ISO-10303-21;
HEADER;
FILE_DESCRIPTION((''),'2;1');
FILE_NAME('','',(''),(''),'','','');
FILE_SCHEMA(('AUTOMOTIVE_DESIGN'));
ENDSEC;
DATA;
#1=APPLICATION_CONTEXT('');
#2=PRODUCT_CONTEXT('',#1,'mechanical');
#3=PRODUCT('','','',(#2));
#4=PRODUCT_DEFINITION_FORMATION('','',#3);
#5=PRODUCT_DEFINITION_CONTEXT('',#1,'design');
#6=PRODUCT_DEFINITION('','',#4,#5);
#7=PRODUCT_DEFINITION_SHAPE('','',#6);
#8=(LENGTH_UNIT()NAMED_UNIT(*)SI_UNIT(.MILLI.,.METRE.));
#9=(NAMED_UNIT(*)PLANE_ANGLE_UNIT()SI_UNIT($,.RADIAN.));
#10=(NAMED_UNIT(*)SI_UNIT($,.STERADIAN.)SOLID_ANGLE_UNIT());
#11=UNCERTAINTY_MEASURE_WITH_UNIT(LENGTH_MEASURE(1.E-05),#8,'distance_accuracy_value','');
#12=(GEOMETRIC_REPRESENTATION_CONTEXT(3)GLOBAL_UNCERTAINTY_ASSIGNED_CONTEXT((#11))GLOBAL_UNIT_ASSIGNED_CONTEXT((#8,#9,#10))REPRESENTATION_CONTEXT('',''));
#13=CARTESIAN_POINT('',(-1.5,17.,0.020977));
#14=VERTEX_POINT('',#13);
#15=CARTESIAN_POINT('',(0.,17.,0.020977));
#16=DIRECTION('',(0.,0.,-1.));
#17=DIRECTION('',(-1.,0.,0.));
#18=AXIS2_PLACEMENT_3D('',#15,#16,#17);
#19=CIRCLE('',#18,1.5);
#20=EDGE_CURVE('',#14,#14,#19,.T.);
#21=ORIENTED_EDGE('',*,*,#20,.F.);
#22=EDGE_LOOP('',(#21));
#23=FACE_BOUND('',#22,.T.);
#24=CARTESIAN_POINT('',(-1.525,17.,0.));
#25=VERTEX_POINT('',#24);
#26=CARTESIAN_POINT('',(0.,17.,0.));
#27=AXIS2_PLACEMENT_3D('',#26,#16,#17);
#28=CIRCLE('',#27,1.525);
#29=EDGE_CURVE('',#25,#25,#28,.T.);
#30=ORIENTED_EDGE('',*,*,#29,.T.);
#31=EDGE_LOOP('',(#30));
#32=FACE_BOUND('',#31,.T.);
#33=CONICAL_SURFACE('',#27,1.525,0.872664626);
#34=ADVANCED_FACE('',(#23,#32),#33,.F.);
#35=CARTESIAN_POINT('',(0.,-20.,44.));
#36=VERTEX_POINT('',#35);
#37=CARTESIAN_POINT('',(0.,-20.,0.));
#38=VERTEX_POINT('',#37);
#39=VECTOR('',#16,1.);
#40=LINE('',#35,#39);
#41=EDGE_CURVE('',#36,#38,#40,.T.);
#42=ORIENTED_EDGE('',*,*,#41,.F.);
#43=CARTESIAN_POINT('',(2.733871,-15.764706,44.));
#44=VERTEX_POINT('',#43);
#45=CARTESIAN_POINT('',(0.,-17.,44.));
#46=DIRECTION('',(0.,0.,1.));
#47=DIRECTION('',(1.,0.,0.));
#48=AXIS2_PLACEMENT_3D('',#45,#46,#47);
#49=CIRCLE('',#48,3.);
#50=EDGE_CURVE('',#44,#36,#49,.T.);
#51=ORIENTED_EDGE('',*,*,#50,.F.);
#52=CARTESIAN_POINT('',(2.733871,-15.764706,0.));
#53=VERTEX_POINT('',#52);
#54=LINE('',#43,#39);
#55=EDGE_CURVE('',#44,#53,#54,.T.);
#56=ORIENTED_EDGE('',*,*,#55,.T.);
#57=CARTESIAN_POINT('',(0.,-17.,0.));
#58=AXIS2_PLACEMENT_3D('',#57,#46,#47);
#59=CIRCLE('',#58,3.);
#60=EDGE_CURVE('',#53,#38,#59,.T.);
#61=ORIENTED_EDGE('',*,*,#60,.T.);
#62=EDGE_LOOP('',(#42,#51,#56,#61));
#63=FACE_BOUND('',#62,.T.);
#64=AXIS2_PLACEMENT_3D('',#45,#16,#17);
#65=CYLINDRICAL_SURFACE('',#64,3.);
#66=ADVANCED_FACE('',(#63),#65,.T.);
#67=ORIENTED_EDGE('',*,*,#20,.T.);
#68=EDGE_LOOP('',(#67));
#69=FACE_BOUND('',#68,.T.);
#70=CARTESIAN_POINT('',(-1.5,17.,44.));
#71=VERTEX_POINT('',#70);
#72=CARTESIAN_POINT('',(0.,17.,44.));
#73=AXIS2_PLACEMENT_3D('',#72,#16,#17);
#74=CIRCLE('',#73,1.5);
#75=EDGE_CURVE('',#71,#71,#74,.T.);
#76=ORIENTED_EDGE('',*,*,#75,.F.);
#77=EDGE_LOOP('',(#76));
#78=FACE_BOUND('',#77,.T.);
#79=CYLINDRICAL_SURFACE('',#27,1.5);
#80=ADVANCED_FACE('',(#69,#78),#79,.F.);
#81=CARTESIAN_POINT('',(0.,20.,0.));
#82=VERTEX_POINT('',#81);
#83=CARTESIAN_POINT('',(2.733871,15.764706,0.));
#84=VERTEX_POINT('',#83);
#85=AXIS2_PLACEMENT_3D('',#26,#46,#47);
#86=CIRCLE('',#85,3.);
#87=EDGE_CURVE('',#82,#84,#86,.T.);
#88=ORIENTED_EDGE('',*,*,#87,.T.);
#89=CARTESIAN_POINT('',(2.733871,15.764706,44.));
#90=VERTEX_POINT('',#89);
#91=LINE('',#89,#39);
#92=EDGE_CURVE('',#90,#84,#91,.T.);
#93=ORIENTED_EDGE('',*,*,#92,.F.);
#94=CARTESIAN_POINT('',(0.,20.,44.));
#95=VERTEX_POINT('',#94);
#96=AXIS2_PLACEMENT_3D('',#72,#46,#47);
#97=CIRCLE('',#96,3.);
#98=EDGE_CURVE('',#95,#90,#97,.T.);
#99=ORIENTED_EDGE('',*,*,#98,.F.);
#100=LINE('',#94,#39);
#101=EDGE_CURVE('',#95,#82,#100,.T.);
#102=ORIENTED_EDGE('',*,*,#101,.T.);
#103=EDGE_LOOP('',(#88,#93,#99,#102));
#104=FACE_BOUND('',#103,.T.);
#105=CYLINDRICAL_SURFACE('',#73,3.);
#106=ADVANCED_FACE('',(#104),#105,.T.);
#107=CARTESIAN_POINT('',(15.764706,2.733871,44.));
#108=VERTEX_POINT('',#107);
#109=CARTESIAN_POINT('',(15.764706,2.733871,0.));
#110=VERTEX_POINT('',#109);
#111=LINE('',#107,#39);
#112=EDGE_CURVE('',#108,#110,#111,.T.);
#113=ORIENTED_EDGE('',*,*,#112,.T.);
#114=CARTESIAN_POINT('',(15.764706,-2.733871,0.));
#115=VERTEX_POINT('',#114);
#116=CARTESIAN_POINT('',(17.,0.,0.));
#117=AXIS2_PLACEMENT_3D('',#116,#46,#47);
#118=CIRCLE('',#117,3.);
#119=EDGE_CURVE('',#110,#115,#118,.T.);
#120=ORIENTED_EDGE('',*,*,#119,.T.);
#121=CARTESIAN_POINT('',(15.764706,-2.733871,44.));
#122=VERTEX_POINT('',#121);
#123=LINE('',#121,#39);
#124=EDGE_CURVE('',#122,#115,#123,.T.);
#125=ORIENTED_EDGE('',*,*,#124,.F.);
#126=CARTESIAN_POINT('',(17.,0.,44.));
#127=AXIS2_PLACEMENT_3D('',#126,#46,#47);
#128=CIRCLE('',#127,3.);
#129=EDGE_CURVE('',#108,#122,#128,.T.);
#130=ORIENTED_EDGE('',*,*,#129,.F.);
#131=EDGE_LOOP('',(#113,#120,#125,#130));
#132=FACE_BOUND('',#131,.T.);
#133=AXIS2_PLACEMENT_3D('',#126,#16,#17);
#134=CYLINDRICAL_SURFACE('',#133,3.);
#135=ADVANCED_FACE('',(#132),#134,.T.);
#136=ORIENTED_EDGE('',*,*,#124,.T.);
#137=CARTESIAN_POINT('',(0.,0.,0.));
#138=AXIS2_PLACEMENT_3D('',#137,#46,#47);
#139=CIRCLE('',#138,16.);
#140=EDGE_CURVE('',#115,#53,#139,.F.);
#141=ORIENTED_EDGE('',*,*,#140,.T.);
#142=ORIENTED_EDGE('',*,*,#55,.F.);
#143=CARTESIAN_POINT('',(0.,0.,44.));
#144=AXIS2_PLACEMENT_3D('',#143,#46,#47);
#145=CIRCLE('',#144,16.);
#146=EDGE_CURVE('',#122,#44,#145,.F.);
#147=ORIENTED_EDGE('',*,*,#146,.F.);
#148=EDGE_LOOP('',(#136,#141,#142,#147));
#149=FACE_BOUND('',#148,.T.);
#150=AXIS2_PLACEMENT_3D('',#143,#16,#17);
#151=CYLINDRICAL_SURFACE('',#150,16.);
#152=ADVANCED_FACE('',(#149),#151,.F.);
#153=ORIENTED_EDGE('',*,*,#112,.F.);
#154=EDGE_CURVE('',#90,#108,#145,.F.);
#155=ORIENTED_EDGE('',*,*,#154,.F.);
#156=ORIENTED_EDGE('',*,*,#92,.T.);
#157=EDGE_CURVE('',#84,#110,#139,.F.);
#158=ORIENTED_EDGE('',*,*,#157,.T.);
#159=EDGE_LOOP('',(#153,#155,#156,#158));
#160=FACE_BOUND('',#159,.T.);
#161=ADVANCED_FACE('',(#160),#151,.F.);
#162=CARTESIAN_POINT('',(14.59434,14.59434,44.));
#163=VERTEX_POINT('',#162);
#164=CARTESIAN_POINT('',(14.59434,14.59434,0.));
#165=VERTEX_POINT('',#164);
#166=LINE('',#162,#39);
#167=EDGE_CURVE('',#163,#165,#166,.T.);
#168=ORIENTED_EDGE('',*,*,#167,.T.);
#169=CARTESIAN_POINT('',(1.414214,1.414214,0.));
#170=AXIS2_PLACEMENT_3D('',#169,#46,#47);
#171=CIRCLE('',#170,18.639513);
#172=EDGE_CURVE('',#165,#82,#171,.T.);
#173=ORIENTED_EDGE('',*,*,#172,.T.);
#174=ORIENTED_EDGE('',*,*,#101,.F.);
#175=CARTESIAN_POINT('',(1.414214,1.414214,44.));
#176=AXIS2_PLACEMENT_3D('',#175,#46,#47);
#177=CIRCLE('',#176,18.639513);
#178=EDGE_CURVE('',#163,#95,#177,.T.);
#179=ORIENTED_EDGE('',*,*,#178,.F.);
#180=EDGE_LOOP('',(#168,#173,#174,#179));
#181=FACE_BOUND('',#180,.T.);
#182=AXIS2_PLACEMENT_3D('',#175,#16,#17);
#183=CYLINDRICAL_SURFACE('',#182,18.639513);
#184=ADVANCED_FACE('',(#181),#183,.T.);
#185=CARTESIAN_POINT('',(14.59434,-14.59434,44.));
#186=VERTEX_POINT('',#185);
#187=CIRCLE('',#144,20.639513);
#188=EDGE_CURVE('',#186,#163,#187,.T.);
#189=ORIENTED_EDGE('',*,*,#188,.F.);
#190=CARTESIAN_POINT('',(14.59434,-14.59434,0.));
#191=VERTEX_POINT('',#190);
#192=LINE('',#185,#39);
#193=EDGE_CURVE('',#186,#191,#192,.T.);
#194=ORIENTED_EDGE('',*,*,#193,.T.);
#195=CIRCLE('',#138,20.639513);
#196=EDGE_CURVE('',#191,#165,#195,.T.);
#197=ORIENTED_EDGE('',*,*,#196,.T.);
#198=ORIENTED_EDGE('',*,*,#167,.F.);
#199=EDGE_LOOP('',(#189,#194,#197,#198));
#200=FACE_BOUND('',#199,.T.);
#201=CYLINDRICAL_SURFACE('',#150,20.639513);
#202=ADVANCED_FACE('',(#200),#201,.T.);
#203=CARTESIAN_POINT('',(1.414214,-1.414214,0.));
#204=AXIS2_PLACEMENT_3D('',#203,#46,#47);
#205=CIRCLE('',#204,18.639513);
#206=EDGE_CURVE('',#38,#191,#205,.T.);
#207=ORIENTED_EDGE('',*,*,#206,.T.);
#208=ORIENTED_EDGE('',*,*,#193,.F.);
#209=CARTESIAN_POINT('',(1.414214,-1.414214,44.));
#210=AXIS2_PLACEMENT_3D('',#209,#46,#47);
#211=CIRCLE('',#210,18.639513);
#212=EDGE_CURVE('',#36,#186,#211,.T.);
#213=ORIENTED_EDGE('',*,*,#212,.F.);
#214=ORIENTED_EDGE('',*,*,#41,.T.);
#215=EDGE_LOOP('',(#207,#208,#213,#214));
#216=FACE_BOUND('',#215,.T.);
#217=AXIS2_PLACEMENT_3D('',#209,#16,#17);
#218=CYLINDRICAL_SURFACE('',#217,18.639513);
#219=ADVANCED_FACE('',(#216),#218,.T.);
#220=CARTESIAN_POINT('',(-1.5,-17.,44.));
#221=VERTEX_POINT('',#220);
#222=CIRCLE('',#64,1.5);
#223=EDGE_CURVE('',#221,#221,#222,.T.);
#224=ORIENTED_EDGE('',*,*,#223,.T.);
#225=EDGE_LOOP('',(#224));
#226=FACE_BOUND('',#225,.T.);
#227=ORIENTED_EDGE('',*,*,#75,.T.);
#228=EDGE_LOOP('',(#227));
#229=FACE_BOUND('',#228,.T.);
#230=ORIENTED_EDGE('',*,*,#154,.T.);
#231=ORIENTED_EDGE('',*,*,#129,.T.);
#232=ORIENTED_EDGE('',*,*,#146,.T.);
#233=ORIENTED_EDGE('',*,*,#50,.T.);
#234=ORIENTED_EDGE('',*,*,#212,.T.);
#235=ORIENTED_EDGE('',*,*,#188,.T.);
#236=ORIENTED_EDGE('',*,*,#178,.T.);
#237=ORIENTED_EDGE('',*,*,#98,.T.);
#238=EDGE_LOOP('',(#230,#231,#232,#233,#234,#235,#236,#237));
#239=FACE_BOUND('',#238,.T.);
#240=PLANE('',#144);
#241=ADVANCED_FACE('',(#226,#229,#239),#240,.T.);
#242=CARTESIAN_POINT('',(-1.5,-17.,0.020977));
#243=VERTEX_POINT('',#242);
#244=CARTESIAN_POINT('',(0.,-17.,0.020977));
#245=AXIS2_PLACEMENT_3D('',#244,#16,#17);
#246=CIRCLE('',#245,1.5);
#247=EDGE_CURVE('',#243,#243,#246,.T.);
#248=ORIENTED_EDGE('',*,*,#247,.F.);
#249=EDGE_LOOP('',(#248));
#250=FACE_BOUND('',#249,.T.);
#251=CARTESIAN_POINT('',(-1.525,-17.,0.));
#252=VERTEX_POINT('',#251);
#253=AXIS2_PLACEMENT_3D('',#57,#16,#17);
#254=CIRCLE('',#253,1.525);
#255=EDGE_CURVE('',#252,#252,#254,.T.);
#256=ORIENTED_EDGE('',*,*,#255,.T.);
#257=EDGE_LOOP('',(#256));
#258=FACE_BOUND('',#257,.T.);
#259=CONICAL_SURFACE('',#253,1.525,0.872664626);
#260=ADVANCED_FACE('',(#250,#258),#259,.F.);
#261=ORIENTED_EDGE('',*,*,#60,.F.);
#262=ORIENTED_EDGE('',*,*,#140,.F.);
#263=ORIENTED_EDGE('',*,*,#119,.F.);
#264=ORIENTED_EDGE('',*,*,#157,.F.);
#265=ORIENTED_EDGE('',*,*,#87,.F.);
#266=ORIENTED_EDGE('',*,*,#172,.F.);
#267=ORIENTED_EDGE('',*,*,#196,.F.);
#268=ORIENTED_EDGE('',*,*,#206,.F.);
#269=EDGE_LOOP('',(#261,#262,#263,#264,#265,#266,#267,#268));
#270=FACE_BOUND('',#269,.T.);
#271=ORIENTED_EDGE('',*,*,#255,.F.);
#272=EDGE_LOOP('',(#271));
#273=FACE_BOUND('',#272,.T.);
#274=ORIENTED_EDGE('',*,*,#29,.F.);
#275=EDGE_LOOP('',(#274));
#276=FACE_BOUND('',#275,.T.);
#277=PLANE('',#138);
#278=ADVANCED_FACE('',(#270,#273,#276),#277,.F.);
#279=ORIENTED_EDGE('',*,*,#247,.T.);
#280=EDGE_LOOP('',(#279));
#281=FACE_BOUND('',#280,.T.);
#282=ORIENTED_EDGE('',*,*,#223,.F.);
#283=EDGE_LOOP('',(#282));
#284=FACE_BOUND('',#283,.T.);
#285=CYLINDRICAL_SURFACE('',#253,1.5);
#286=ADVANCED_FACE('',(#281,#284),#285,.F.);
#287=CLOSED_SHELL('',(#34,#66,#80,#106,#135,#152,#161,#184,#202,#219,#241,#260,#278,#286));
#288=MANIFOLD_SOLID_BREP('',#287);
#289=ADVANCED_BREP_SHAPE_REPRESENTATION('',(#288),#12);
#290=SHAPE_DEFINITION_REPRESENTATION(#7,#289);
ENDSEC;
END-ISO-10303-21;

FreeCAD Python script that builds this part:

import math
import FreeCAD as App
import Part
import Sketcher

V = App.Vector

doc = App.newDocument("Part")
body = doc.addObject("PartDesign::Body", "Body")

sketch1 = body.newObject("Sketcher::SketchObject", "Sketch")
sketch1.AttachmentSupport = (doc.getObject("XY_Plane"), [""])
sketch1.MapMode = "FlatFace"
sketch1.addGeometry([
    Part.ArcOfCircle(Part.Circle(V(1.414214, 1.414214, 0), V(0, 0, 1), 18.639513), math.radians(45), math.radians(94.351316)),
    Part.ArcOfCircle(Part.Circle(V(0, 17, 0), V(0, 0, 1), 3), math.radians(90), math.radians(335.684261)),
    Part.ArcOfCircle(Part.Circle(V(0, 0, 0), V(0, 0, 1), 16), math.radians(9.838227), math.radians(80.161773)),
    Part.ArcOfCircle(Part.Circle(V(17, 0, 0), V(0, 0, 1), 3), math.radians(114.315739), math.radians(245.684261)),
    Part.ArcOfCircle(Part.Circle(V(0, 0, 0), V(0, 0, 1), 16), math.radians(-80.161773), math.radians(-9.838227)),
    Part.ArcOfCircle(Part.Circle(V(0, -17, 0), V(0, 0, 1), 3), math.radians(24.315739), math.radians(270)),
    Part.ArcOfCircle(Part.Circle(V(1.414214, -1.414214, 0), V(0, 0, 1), 18.639513), math.radians(-94.351316), math.radians(-45)),
    Part.ArcOfCircle(Part.Circle(V(0, 0, 0), V(0, 0, 1), 20.639513), math.radians(-45), math.radians(45)),
], False)
sketch1.addConstraint([
    Sketcher.Constraint("Coincident", 0, 2, 1, 1),
    Sketcher.Constraint("Coincident", 1, 2, 2, 2),
    Sketcher.Constraint("Coincident", 2, 1, 3, 1),
    Sketcher.Constraint("Coincident", 3, 2, 4, 2),
    Sketcher.Constraint("Coincident", 4, 1, 5, 1),
    Sketcher.Constraint("Coincident", 5, 2, 6, 1),
    Sketcher.Constraint("Tangent", 6, 2, 7, 1),
    Sketcher.Constraint("Tangent", 7, 2, 0, 1),
    Sketcher.Constraint("Coincident", 2, 3, -1, 1),
    Sketcher.Constraint("Coincident", 4, 3, -1, 1),
    Sketcher.Constraint("Coincident", 7, 3, -1, 1),
    Sketcher.Constraint("Equal", 1, 3),
    Sketcher.Constraint("Equal", 2, 4),
    Sketcher.Constraint("Equal", 3, 5),
    Sketcher.Constraint("Equal", 0, 6),
    Sketcher.Constraint("Symmetric", 1, 3, 5, 3, -1, 1),
    Sketcher.Constraint("PointOnObject", 1, 3, -2),
    Sketcher.Constraint("PointOnObject", 3, 3, -1),
    Sketcher.Constraint("PointOnObject", 0, 2, -2),
    Sketcher.Constraint("PointOnObject", 5, 2, -2),
    Sketcher.Constraint("Radius", 1, 3.0),
    Sketcher.Constraint("Radius", 2, 16.0),
    Sketcher.Constraint("DistanceY", -1, 1, 1, 3, 17.0),
    Sketcher.Constraint("DistanceX", -1, 1, 3, 3, 17.0),
    Sketcher.Constraint("Radius", 0, 18.639513),
    Sketcher.Constraint("Radius", 7, 20.639513),
])
pad1 = body.newObject("PartDesign::Pad", "Pad")
pad1.Profile = sketch1
pad1.Length = 44

sketch2 = body.newObject("Sketcher::SketchObject", "Sketch001")
sketch2.AttachmentSupport = (doc.getObject("XY_Plane"), [""])
sketch2.MapMode = "FlatFace"
sketch2.addGeometry([
    Part.Circle(V(0, 17, 0), V(0, 0, 1), 1.5),
    Part.Circle(V(0, -17, 0), V(0, 0, 1), 1.5),
], False)
sketch2.addConstraint([
    Sketcher.Constraint("Equal", 0, 1),
    Sketcher.Constraint("Symmetric", 0, 3, 1, 3, -1, 1),
    Sketcher.Constraint("PointOnObject", 0, 3, -2),
    Sketcher.Constraint("Diameter", 0, 3.0),
    Sketcher.Constraint("DistanceY", -1, 1, 0, 3, 17.0),
])
doc.recompute()
hole = body.newObject("PartDesign::Hole", "Hole")
hole.Profile = sketch2
hole.ThreadType = "None"
hole.Diameter = 3
hole.DepthType = "ThroughAll"
hole.HoleCutType = "Countersink"
hole.HoleCutDiameter = 3.05
hole.HoleCutCountersinkAngle = 100
hole.Reversed = True

doc.recompute()
